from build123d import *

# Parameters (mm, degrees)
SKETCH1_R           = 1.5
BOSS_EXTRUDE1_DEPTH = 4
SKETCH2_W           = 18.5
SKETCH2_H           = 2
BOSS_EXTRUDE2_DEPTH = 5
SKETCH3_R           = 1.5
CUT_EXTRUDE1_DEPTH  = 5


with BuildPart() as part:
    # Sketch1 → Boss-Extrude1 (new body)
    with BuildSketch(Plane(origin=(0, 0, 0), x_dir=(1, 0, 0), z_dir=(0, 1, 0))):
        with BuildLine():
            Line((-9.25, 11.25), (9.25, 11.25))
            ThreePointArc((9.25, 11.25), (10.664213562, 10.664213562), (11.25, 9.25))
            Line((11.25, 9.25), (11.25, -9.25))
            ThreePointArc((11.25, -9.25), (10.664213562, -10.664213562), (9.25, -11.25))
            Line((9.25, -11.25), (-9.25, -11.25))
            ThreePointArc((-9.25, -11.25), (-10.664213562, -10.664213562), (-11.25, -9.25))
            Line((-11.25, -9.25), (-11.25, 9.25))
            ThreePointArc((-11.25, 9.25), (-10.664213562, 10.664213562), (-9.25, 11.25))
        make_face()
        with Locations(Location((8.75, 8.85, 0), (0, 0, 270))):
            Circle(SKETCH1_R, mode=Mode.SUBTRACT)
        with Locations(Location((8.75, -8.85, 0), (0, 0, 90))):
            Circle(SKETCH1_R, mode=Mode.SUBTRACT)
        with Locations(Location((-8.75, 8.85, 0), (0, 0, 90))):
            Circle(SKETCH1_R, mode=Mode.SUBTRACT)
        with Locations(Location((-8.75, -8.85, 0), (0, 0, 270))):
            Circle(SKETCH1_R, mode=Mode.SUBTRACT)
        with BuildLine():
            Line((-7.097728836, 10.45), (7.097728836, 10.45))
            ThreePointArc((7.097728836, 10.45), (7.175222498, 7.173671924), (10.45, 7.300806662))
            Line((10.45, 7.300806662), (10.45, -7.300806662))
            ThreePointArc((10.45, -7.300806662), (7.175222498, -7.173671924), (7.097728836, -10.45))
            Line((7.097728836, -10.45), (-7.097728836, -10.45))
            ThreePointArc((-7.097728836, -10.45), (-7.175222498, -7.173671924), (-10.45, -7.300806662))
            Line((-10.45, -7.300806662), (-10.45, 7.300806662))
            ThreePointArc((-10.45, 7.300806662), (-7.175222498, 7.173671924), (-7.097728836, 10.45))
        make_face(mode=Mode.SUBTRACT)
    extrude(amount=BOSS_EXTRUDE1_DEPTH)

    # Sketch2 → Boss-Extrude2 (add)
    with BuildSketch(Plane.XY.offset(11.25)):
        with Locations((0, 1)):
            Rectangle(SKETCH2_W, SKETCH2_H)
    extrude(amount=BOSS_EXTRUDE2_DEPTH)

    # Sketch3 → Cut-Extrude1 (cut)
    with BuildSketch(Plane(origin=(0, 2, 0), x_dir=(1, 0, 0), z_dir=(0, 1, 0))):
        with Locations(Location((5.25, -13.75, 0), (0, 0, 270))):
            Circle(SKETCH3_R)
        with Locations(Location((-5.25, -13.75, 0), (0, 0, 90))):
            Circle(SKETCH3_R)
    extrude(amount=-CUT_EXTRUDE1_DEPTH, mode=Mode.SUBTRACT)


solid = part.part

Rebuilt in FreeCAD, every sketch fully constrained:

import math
import FreeCAD as App
import Part
import Sketcher

V = App.Vector

doc = App.newDocument("Part")
body = doc.addObject("PartDesign::Body", "Body")

# Sketch on XZ plane
sketch1 = doc.addObject("Sketcher::SketchObject", "Sketch")
body.addObject(sketch1)
sketch1.AttachmentSupport = (doc.XZ_Plane, [""])
sketch1.MapMode = "FlatFace"
sketch1.addGeometry([
    Part.LineSegment(V(9.2, -11.2, 0), V(-9.2, -11.2, 0)),  # 0
    Part.ArcOfCircle(Part.Circle(V(-9.2, -9.2, 0), V(0, 0, 1), 2), math.radians(-180), math.radians(-90)),  # 1
    Part.LineSegment(V(-11.2, -9.2, 0), V(-11.2, 9.2, 0)),  # 2
    Part.ArcOfCircle(Part.Circle(V(-9.2, 9.2, 0), V(0, 0, 1), 2), math.radians(90), math.radians(180)),  # 3
    Part.LineSegment(V(-9.2, 11.2, 0), V(9.2, 11.2, 0)),  # 4
    Part.ArcOfCircle(Part.Circle(V(9.2, 9.2, 0), V(0, 0, 1), 2), math.radians(0), math.radians(90)),  # 5
    Part.LineSegment(V(11.2, 9.2, 0), V(11.2, -9.2, 0)),  # 6
    Part.ArcOfCircle(Part.Circle(V(9.2, -9.2, 0), V(0, 0, 1), 2), math.radians(-90), math.radians(0)),  # 7
    Part.Circle(V(8.8, 8.8, 0), V(0, 0, 1), 1.5),  # 8
    Part.LineSegment(V(-7.1, -10.4, 0), V(7.1, -10.4, 0)),  # 9
    Part.ArcOfCircle(Part.Circle(V(8.8, -8.8, 0), V(0, 0, 1), 2.3), math.radians(42), math.radians(224)),  # 10
    Part.LineSegment(V(10.4, -7.3, 0), V(10.4, 7.3, 0)),  # 11
    Part.ArcOfCircle(Part.Circle(V(8.8, 8.8, 0), V(0, 0, 1), 2.3), math.radians(136), math.radians(318)),  # 12
    Part.LineSegment(V(7.1, 10.4, 0), V(-7.1, 10.4, 0)),  # 13
    Part.ArcOfCircle(Part.Circle(V(-8.8, 8.8, 0), V(0, 0, 1), 2.3), math.radians(-138), math.radians(44)),  # 14
    Part.LineSegment(V(-10.4, 7.3, 0), V(-10.4, -7.3, 0)),  # 15
    Part.ArcOfCircle(Part.Circle(V(-8.8, -8.8, 0), V(0, 0, 1), 2.3), math.radians(-44), math.radians(138)),  # 16
    Part.Circle(V(-8.8, 8.8, 0), V(0, 0, 1), 1.5),  # 17
    Part.Circle(V(8.8, -8.8, 0), V(0, 0, 1), 1.5),  # 18
    Part.Circle(V(-8.8, -8.8, 0), V(0, 0, 1), 1.5),  # 19
], False)
sketch1.addConstraint([
    Sketcher.Constraint("Tangent", 0, 2, 1, 2),
    Sketcher.Constraint("Tangent", 1, 1, 2, 1),
    Sketcher.Constraint("Tangent", 2, 2, 3, 2),
    Sketcher.Constraint("Tangent", 3, 1, 4, 1),
    Sketcher.Constraint("Tangent", 4, 2, 5, 2),
    Sketcher.Constraint("Tangent", 5, 1, 6, 1),
    Sketcher.Constraint("Tangent", 6, 2, 7, 2),
    Sketcher.Constraint("Tangent", 7, 1, 0, 1),
    Sketcher.Constraint("Coincident", 9, 2, 10, 2),
    Sketcher.Constraint("Coincident", 10, 1, 11, 1),
    Sketcher.Constraint("Coincident", 11, 2, 12, 2),
    Sketcher.Constraint("Coincident", 12, 1, 13, 1),
    Sketcher.Constraint("Coincident", 13, 2, 14, 2),
    Sketcher.Constraint("Coincident", 14, 1, 15, 1),
    Sketcher.Constraint("Coincident", 15, 2, 16, 2),
    Sketcher.Constraint("Coincident", 16, 1, 9, 1),
    Sketcher.Constraint("Horizontal", 0),
    Sketcher.Constraint("Vertical", 2),
    Sketcher.Constraint("Horizontal", 4),
    Sketcher.Constraint("Vertical", 6),
    Sketcher.Constraint("Horizontal", 9),
    Sketcher.Constraint("Vertical", 11),
    Sketcher.Constraint("Horizontal", 13),
    Sketcher.Constraint("Vertical", 15),
    Sketcher.Constraint("Coincident", 12, 3, 8, 3),
    Sketcher.Constraint("Coincident", 17, 3, 14, 3),
    Sketcher.Constraint("Coincident", 18, 3, 10, 3),
    Sketcher.Constraint("Coincident", 19, 3, 16, 3),
    Sketcher.Constraint("Equal", 1, 3),
    Sketcher.Constraint("Equal", 3, 5),
    Sketcher.Constraint("Equal", 5, 7),
    Sketcher.Constraint("Equal", 10, 12),
    Sketcher.Constraint("Equal", 12, 14),
    Sketcher.Constraint("Equal", 14, 16),
    Sketcher.Constraint("Equal", 8, 17),
    Sketcher.Constraint("Equal", 17, 18),
    Sketcher.Constraint("Equal", 18, 19),
    Sketcher.Constraint("Symmetric", 1, 3, 5, 3, -1, 1),
    Sketcher.Constraint("Symmetric", 10, 3, 14, 3, -1, 1),
    Sketcher.Constraint("Symmetric", 8, 3, 16, 3, -1, 1),
    Sketcher.Constraint("Symmetric", 8, 3, 14, 3, -2),
    Sketcher.Constraint("Horizontal", 11, 2, 14, 1),
    Sketcher.Constraint("Vertical", 9, 2, 12, 1),
    Sketcher.Constraint("Equal", 4, 2),
    Sketcher.Constraint("Diameter", 8, 3.0),
    Sketcher.Constraint("Radius", 1, 2.0),
    Sketcher.Constraint("Radius", 10, 2.3),
    Sketcher.Constraint("DistanceX", 0, 2, 0, 1, 18.5),
    Sketcher.Constraint("DistanceX", 3, 3, 8, 3, 18.0),
    Sketcher.Constraint("DistanceY", 8, 3, 5, 3, 0.4),
    Sketcher.Constraint("DistanceY", 7, 1, 9, 2, 0.8),
    Sketcher.Constraint("DistanceX", 10, 1, 6, 2, 0.8),
])
pad1 = doc.addObject("PartDesign::Pad", "Pad")
body.addObject(pad1)
pad1.Profile = sketch1
pad1.Length = 4
pad1.Reversed = True

# Sketch on XY plane
sketch2 = doc.addObject("Sketcher::SketchObject", "Sketch001")
body.addObject(sketch2)
sketch2.AttachmentSupport = (doc.XY_Plane, [""])
sketch2.MapMode = "FlatFace"
sketch2.AttachmentOffset = App.Placement(V(0, 0, 11.25), App.Rotation())
sketch2.addGeometry([
    Part.LineSegment(V(-9.2, 2, 0), V(-9.2, 0, 0)),
    Part.LineSegment(V(-9.2, 0, 0), V(9.2, 0, 0)),
    Part.LineSegment(V(9.2, 0, 0), V(9.2, 2, 0)),
    Part.LineSegment(V(9.2, 2, 0), V(-9.2, 2, 0)),
], False)
sketch2.addConstraint([
    Sketcher.Constraint("Coincident", 0, 2, 1, 1),
    Sketcher.Constraint("Coincident", 1, 2, 2, 1),
    Sketcher.Constraint("Coincident", 2, 2, 3, 1),
    Sketcher.Constraint("Coincident", 3, 2, 0, 1),
    Sketcher.Constraint("Vertical", 0),
    Sketcher.Constraint("Horizontal", 1),
    Sketcher.Constraint("Vertical", 2),
    Sketcher.Constraint("Horizontal", 3),
    Sketcher.Constraint("Symmetric", 0, 2, 1, 2, -1, 1),
    Sketcher.Constraint("DistanceY", 0, 2, 0, 1, 2.0),
    Sketcher.Constraint("DistanceX", 1, 1, 1, 2, 18.5),
])
pad2 = doc.addObject("PartDesign::Pad", "Pad001")
body.addObject(pad2)
pad2.Profile = sketch2
pad2.Length = 5

# Sketch on XZ plane
sketch3 = doc.addObject("Sketcher::SketchObject", "Sketch002")
body.addObject(sketch3)
sketch3.AttachmentSupport = (doc.XZ_Plane, [""])
sketch3.MapMode = "FlatFace"
sketch3.AttachmentOffset = App.Placement(V(0, 0, -2), App.Rotation())
sketch3.addGeometry([
    Part.Circle(V(5.2, 13.8, 0), V(0, 0, 1), 1.5),
    Part.Circle(V(-5.2, 13.8, 0), V(0, 0, 1), 1.5),
], False)
sketch3.addConstraint([
    Sketcher.Constraint("Equal", 0, 1),
    Sketcher.Constraint("Symmetric", 0, 3, 1, 3, -2),
    Sketcher.Constraint("Diameter", 0, 3.0),
    Sketcher.Constraint("DistanceX", 1, 3, 0, 3, 10.5),
    Sketcher.Constraint("DistanceY", -1, 1, 0, 3, 13.75),
])
pocket1 = doc.addObject("PartDesign::Pocket", "Pocket")
body.addObject(pocket1)
pocket1.Profile = sketch3
pocket1.Length = 5
pocket1.Reversed = True

doc.recompute()
